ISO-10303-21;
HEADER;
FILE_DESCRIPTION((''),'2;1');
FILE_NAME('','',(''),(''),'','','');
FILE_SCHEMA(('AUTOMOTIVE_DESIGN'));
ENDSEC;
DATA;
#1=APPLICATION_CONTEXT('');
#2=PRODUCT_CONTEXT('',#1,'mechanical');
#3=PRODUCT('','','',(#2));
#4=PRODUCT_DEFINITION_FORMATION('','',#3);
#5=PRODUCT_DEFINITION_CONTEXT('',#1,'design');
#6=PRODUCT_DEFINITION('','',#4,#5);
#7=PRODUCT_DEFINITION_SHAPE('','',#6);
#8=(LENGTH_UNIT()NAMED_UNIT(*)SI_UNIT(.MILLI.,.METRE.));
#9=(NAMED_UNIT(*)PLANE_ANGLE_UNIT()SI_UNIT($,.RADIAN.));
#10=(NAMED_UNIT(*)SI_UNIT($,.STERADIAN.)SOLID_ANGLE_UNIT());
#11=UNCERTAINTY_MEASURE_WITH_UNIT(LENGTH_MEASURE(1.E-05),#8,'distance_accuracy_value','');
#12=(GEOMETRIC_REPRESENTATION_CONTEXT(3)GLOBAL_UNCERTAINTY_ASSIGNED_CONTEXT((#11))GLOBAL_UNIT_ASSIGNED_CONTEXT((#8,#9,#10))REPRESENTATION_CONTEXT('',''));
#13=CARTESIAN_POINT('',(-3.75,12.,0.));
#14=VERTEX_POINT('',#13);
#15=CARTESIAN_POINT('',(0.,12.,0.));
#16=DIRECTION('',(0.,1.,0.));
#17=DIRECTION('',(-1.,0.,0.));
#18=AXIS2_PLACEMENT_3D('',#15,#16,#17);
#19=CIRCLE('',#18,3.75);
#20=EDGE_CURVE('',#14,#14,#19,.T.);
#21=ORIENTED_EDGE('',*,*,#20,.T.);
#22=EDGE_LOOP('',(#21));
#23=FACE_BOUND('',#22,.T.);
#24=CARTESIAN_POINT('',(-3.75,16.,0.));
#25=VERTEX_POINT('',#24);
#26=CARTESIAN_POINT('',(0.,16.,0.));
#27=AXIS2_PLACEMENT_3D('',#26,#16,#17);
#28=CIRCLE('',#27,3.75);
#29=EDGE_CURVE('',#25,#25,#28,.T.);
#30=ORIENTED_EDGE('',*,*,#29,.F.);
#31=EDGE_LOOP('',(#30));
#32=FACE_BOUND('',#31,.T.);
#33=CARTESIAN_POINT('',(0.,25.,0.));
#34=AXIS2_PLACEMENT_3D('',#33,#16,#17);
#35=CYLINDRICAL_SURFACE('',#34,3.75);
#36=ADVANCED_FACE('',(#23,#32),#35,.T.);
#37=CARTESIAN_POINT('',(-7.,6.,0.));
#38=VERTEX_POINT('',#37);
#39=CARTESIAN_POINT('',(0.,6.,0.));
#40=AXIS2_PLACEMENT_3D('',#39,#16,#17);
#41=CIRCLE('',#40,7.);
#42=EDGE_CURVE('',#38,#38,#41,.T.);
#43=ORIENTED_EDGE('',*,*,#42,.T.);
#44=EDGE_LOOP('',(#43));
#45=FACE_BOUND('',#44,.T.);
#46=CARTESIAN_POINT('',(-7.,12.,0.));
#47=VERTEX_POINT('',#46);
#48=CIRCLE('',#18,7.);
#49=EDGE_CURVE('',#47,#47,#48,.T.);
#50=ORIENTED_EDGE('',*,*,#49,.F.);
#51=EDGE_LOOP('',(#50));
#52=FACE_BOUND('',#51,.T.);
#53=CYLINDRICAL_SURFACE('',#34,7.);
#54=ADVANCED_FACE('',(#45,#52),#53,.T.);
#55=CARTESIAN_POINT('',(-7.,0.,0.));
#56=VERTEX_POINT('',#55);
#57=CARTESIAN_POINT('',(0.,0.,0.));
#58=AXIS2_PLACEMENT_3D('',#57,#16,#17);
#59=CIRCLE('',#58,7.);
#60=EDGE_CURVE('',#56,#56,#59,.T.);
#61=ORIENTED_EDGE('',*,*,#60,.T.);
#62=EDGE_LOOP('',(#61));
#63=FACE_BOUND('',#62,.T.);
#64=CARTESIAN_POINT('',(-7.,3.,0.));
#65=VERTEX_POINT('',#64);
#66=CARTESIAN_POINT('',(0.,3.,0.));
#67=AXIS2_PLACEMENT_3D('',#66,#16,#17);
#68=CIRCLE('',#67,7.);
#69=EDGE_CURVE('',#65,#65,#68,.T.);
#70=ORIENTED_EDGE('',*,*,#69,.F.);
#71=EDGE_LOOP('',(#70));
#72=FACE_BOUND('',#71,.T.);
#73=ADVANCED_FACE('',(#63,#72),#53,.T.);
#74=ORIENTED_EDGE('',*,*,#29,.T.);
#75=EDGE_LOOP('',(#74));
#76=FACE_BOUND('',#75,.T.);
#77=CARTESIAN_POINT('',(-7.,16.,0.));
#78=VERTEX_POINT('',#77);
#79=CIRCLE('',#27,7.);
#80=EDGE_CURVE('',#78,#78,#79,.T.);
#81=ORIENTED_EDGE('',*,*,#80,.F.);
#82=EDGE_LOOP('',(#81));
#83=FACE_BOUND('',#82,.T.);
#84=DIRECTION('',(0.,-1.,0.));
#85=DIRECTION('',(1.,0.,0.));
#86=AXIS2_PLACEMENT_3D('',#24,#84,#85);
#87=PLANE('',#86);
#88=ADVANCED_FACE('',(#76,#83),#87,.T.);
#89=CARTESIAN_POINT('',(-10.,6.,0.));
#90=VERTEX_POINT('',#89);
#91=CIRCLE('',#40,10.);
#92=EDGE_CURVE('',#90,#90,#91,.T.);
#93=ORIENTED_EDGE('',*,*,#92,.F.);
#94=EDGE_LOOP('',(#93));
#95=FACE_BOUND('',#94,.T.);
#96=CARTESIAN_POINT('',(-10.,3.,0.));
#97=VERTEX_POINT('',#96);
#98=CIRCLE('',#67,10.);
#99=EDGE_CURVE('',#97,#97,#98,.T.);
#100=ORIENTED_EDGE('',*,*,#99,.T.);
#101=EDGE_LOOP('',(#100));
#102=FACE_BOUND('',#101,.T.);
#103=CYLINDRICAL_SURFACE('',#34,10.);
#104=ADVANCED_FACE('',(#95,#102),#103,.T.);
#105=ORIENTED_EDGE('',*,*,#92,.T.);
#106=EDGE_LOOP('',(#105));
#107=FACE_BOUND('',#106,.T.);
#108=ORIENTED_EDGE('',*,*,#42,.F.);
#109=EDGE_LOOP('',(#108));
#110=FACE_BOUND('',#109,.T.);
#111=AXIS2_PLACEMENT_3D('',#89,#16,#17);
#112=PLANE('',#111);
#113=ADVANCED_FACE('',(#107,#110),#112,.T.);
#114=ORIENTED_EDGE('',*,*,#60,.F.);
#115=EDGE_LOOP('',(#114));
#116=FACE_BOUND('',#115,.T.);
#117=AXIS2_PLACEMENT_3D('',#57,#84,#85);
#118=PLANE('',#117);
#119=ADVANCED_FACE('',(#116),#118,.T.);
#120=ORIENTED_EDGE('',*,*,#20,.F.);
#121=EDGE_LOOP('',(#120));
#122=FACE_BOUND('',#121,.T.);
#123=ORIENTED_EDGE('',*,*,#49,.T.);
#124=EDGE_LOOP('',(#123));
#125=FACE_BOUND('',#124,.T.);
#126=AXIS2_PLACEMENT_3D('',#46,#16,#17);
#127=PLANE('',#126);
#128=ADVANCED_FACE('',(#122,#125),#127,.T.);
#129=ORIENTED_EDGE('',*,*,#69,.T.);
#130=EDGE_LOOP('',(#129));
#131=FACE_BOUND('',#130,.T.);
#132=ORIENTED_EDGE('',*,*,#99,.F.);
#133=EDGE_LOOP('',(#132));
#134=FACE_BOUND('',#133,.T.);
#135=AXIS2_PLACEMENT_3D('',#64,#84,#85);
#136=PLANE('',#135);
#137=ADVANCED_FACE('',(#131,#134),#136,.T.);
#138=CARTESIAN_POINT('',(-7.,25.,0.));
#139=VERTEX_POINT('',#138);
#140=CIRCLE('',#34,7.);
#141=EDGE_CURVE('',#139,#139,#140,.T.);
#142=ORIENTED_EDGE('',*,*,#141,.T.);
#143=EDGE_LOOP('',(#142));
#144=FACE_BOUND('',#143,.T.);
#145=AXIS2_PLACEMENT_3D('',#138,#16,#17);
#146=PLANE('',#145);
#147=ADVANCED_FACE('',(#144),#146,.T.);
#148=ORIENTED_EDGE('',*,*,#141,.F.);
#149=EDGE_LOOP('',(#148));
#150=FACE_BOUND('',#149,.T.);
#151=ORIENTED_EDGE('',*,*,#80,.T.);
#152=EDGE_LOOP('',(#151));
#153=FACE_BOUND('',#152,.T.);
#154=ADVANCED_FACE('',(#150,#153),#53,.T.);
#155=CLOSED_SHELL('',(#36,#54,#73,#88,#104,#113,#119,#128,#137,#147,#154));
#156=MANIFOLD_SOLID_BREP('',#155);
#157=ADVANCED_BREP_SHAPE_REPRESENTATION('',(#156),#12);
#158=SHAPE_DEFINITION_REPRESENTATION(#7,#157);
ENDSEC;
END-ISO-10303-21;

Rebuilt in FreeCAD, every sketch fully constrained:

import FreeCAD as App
import Part
import Sketcher

doc = App.newDocument("Part")
body = doc.addObject("PartDesign::Body", "Body")

sketch1 = doc.addObject("Sketcher::SketchObject", "Sketch")
body.addObject(sketch1)
sketch1.AttachmentSupport = (doc.XY_Plane, [""])
sketch1.MapMode = "FlatFace"
sketch1.addGeometry(Part.LineSegment(App.Vector(-7, 0, 0), App.Vector(0, 0, 0)), False)
sketch1.addGeometry(Part.LineSegment(App.Vector(0, 0, 0), App.Vector(0, 25, 0)), False)
sketch1.addGeometry(Part.LineSegment(App.Vector(0, 25, 0), App.Vector(-7, 25, 0)), False)
sketch1.addGeometry(Part.LineSegment(App.Vector(-7, 25, 0), App.Vector(-7, 16, 0)), False)
sketch1.addGeometry(Part.LineSegment(App.Vector(-7, 16, 0), App.Vector(-3.8, 16, 0)), False)
sketch1.addGeometry(Part.LineSegment(App.Vector(-3.8, 16, 0), App.Vector(-3.8, 12, 0)), False)
sketch1.addGeometry(Part.LineSegment(App.Vector(-3.8, 12, 0), App.Vector(-7, 12, 0)), False)
sketch1.addGeometry(Part.LineSegment(App.Vector(-7, 12, 0), App.Vector(-7, 6, 0)), False)
sketch1.addGeometry(Part.LineSegment(App.Vector(-7, 6, 0), App.Vector(-10, 6, 0)), False)
sketch1.addGeometry(Part.LineSegment(App.Vector(-10, 6, 0), App.Vector(-10, 3, 0)), False)
sketch1.addGeometry(Part.LineSegment(App.Vector(-10, 3, 0), App.Vector(-7, 3, 0)), False)
sketch1.addGeometry(Part.LineSegment(App.Vector(-7, 3, 0), App.Vector(-7, 0, 0)), False)
sketch1.addConstraint(Sketcher.Constraint("Coincident", 0, 2, 1, 1))
sketch1.addConstraint(Sketcher.Constraint("Coincident", 1, 2, 2, 1))
sketch1.addConstraint(Sketcher.Constraint("Coincident", 2, 2, 3, 1))
sketch1.addConstraint(Sketcher.Constraint("Coincident", 3, 2, 4, 1))
sketch1.addConstraint(Sketcher.Constraint("Coincident", 4, 2, 5, 1))
sketch1.addConstraint(Sketcher.Constraint("Coincident", 5, 2, 6, 1))
sketch1.addConstraint(Sketcher.Constraint("Coincident", 6, 2, 7, 1))
sketch1.addConstraint(Sketcher.Constraint("Coincident", 7, 2, 8, 1))
sketch1.addConstraint(Sketcher.Constraint("Coincident", 8, 2, 9, 1))
sketch1.addConstraint(Sketcher.Constraint("Coincident", 9, 2, 10, 1))
sketch1.addConstraint(Sketcher.Constraint("Coincident", 10, 2, 11, 1))
sketch1.addConstraint(Sketcher.Constraint("Coincident", 11, 2, 0, 1))
sketch1.addConstraint(Sketcher.Constraint("Horizontal", 0))
sketch1.addConstraint(Sketcher.Constraint("Vertical", 1))
sketch1.addConstraint(Sketcher.Constraint("Horizontal", 2))
sketch1.addConstraint(Sketcher.Constraint("Vertical", 3))
sketch1.addConstraint(Sketcher.Constraint("Horizontal", 4))
sketch1.addConstraint(Sketcher.Constraint("Vertical", 5))
sketch1.addConstraint(Sketcher.Constraint("Horizontal", 6))
sketch1.addConstraint(Sketcher.Constraint("Vertical", 7))
sketch1.addConstraint(Sketcher.Constraint("Horizontal", 8))
sketch1.addConstraint(Sketcher.Constraint("Vertical", 9))
sketch1.addConstraint(Sketcher.Constraint("Horizontal", 10))
sketch1.addConstraint(Sketcher.Constraint("Vertical", 11))
sketch1.addConstraint(Sketcher.Constraint("Coincident", 0, 2, -1, 1))
sketch1.addConstraint(Sketcher.Constraint("Vertical", 3, 2, 6, 2))
sketch1.addConstraint(Sketcher.Constraint("Vertical", 7, 2, 10, 2))
sketch1.addConstraint(Sketcher.Constraint("Equal", 10, 9))
sketch1.addConstraint(Sketcher.Constraint("Equal", 9, 11))
sketch1.addConstraint(Sketcher.Constraint("DistanceX", 0, 1, 0, 2, 7.0))
sketch1.addConstraint(Sketcher.Constraint("DistanceX", 8, 2, 8, 1, 3.0))
sketch1.addConstraint(Sketcher.Constraint("DistanceY", 1, 1, 1, 2, 25.0))
sketch1.addConstraint(Sketcher.Constraint("DistanceY", 3, 2, 3, 1, 9.0))
sketch1.addConstraint(Sketcher.Constraint("DistanceY", 5, 2, 5, 1, 4.0))
sketch1.addConstraint(Sketcher.Constraint("DistanceX", 4, 1, 4, 2, 3.25))
revolution = doc.addObject("PartDesign::Revolution", "Revolution")
body.addObject(revolution)
revolution.Profile = sketch1
revolution.ReferenceAxis = (sketch1, ["V_Axis"])
revolution.Angle = 360

doc.recompute()
